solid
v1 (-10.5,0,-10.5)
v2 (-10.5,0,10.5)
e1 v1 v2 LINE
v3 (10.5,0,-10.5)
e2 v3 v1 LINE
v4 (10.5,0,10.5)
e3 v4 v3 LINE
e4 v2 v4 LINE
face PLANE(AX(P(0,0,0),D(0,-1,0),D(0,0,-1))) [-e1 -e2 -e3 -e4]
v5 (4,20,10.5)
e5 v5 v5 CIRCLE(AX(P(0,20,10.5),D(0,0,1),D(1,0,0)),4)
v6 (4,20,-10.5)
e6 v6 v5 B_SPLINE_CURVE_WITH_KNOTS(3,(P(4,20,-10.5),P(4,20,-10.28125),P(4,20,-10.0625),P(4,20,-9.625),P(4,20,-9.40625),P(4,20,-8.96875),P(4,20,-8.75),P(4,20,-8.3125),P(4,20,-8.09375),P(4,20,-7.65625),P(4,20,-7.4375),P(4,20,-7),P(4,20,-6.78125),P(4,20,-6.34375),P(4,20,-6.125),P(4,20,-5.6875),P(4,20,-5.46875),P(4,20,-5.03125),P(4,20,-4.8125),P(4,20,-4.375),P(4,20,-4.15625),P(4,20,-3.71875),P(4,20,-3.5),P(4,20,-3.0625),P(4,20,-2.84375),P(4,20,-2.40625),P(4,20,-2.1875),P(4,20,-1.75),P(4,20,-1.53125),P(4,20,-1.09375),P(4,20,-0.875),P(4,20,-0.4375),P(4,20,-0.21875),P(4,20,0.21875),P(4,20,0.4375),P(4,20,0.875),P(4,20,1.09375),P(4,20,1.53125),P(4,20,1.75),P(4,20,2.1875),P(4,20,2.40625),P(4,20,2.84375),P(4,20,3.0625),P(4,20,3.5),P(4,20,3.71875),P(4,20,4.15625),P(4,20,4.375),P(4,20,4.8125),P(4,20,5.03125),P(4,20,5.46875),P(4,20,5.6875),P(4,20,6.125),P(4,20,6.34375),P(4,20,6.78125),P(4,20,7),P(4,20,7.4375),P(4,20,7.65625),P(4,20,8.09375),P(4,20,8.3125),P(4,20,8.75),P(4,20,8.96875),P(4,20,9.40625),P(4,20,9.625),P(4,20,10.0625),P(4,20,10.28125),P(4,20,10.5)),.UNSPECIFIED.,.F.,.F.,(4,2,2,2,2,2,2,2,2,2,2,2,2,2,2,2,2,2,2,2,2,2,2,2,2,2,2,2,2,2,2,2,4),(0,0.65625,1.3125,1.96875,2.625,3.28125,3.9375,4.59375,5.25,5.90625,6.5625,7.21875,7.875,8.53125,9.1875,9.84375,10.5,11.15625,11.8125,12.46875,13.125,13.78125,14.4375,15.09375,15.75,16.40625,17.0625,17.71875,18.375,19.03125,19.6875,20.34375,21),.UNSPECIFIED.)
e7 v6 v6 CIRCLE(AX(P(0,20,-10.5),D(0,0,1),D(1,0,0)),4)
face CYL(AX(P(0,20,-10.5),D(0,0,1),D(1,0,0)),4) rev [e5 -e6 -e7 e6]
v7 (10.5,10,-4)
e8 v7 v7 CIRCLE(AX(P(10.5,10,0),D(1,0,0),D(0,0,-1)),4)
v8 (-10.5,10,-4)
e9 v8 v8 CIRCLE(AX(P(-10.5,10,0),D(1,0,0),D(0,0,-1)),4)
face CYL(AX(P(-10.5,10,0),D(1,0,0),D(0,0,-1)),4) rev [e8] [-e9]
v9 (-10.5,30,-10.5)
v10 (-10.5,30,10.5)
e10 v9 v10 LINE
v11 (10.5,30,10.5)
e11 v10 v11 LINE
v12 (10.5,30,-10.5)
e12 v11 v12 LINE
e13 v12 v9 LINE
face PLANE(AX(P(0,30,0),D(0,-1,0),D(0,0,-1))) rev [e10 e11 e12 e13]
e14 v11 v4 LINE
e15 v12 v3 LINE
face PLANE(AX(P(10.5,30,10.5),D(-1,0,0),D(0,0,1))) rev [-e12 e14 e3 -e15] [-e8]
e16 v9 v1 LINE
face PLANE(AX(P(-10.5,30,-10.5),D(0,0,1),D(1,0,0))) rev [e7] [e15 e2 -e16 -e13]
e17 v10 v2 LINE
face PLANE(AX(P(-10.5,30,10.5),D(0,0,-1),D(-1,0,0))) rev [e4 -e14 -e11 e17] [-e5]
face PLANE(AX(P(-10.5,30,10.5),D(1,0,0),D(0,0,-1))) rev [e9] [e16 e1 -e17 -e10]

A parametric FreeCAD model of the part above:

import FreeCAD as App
import Part
import Sketcher
Q = App.Units.Quantity

doc = App.newDocument("Part")
params = doc.addObject("Spreadsheet::Sheet", "Params")
for row, (alias, value) in enumerate([
    ("sketch1_width", "21 mm"),
    ("pad1_length", "30 mm"),
    ("sketch2_diameter", "8 mm"),
    ("sketch3_diameter", "8 mm"),
], start=1):
    params.set(f"A{row}", alias)
    params.set(f"B{row}", "=" + value)
    params.setAlias(f"B{row}", alias)

body = doc.addObject("PartDesign::Body", "Body")

# Sketch on XZ plane
sketch1 = doc.addObject("Sketcher::SketchObject", "Sketch")
body.addObject(sketch1)
sketch1.AttachmentSupport = (doc.XZ_Plane, [""])
sketch1.MapMode = "FlatFace"
sketch1.addGeometry([
    Part.LineSegment(App.Vector(-10, -10, 0), App.Vector(-10, 10, 0)),
    Part.LineSegment(App.Vector(-10, 10, 0), App.Vector(10, 10, 0)),
    Part.LineSegment(App.Vector(10, 10, 0), App.Vector(10, -10, 0)),
    Part.LineSegment(App.Vector(10, -10, 0), App.Vector(-10, -10, 0)),
], False)
sketch1.addConstraint([
    Sketcher.Constraint("Coincident", 0, 2, 1, 1),
    Sketcher.Constraint("Coincident", 1, 2, 2, 1),
    Sketcher.Constraint("Coincident", 2, 2, 3, 1),
    Sketcher.Constraint("Coincident", 3, 2, 0, 1),
    Sketcher.Constraint("Vertical", 0),
    Sketcher.Constraint("Horizontal", 1),
    Sketcher.Constraint("Vertical", 2),
    Sketcher.Constraint("Horizontal", 3),
    Sketcher.Constraint("Symmetric", 0, 2, 2, 2, -1, 1),
    Sketcher.Constraint("Equal", 3, 0),
    Sketcher.Constraint("DistanceX", 1, 1, 1, 2, Q("21 mm")),
])
sketch1.setExpression("Constraints[10]", "Params.sketch1_width")
pad1 = doc.addObject("PartDesign::Pad", "Pad")
body.addObject(pad1)
pad1.Profile = sketch1
pad1.setExpression("Length", "Params.pad1_length")
pad1.Reversed = True

# Sketch on XY plane
sketch2 = doc.addObject("Sketcher::SketchObject", "Sketch001")
body.addObject(sketch2)
sketch2.AttachmentSupport = (doc.XY_Plane, [""])
sketch2.MapMode = "FlatFace"
sketch2.AttachmentOffset = App.Placement(App.Vector(0, 0, 10.5), App.Rotation())
sketch2.addGeometry(Part.Circle(App.Vector(0, 20, 0), App.Vector(0, 0, 1), 4), False)
sketch2.addConstraint([
    Sketcher.Constraint("PointOnObject", 0, 3, -2),
    Sketcher.Constraint("Diameter", 0, Q("8 mm")),
    Sketcher.Constraint("DistanceY", -1, 1, 0, 3, Q("20 mm")),
])
sketch2.setExpression("Constraints[1]", "Params.sketch2_diameter")
pocket1 = doc.addObject("PartDesign::Pocket", "Pocket")
body.addObject(pocket1)
pocket1.Profile = sketch2
pocket1.Type = "ThroughAll"

# Sketch on YZ plane
sketch3 = doc.addObject("Sketcher::SketchObject", "Sketch002")
body.addObject(sketch3)
sketch3.AttachmentSupport = (doc.YZ_Plane, [""])
sketch3.MapMode = "FlatFace"
sketch3.AttachmentOffset = App.Placement(App.Vector(0, 0, 10.5), App.Rotation())
sketch3.addGeometry(Part.Circle(App.Vector(10, 0, 0), App.Vector(0, 0, 1), 4), False)
sketch3.addConstraint([
    Sketcher.Constraint("PointOnObject", 0, 3, -1),
    Sketcher.Constraint("Diameter", 0, Q("8 mm")),
    Sketcher.Constraint("DistanceX", -1, 1, 0, 3, Q("10 mm")),
])
sketch3.setExpression("Constraints[1]", "Params.sketch3_diameter")
pocket2 = doc.addObject("PartDesign::Pocket", "Pocket001")
body.addObject(pocket2)
pocket2.Profile = sketch3
pocket2.Type = "ThroughAll"

doc.recompute()
